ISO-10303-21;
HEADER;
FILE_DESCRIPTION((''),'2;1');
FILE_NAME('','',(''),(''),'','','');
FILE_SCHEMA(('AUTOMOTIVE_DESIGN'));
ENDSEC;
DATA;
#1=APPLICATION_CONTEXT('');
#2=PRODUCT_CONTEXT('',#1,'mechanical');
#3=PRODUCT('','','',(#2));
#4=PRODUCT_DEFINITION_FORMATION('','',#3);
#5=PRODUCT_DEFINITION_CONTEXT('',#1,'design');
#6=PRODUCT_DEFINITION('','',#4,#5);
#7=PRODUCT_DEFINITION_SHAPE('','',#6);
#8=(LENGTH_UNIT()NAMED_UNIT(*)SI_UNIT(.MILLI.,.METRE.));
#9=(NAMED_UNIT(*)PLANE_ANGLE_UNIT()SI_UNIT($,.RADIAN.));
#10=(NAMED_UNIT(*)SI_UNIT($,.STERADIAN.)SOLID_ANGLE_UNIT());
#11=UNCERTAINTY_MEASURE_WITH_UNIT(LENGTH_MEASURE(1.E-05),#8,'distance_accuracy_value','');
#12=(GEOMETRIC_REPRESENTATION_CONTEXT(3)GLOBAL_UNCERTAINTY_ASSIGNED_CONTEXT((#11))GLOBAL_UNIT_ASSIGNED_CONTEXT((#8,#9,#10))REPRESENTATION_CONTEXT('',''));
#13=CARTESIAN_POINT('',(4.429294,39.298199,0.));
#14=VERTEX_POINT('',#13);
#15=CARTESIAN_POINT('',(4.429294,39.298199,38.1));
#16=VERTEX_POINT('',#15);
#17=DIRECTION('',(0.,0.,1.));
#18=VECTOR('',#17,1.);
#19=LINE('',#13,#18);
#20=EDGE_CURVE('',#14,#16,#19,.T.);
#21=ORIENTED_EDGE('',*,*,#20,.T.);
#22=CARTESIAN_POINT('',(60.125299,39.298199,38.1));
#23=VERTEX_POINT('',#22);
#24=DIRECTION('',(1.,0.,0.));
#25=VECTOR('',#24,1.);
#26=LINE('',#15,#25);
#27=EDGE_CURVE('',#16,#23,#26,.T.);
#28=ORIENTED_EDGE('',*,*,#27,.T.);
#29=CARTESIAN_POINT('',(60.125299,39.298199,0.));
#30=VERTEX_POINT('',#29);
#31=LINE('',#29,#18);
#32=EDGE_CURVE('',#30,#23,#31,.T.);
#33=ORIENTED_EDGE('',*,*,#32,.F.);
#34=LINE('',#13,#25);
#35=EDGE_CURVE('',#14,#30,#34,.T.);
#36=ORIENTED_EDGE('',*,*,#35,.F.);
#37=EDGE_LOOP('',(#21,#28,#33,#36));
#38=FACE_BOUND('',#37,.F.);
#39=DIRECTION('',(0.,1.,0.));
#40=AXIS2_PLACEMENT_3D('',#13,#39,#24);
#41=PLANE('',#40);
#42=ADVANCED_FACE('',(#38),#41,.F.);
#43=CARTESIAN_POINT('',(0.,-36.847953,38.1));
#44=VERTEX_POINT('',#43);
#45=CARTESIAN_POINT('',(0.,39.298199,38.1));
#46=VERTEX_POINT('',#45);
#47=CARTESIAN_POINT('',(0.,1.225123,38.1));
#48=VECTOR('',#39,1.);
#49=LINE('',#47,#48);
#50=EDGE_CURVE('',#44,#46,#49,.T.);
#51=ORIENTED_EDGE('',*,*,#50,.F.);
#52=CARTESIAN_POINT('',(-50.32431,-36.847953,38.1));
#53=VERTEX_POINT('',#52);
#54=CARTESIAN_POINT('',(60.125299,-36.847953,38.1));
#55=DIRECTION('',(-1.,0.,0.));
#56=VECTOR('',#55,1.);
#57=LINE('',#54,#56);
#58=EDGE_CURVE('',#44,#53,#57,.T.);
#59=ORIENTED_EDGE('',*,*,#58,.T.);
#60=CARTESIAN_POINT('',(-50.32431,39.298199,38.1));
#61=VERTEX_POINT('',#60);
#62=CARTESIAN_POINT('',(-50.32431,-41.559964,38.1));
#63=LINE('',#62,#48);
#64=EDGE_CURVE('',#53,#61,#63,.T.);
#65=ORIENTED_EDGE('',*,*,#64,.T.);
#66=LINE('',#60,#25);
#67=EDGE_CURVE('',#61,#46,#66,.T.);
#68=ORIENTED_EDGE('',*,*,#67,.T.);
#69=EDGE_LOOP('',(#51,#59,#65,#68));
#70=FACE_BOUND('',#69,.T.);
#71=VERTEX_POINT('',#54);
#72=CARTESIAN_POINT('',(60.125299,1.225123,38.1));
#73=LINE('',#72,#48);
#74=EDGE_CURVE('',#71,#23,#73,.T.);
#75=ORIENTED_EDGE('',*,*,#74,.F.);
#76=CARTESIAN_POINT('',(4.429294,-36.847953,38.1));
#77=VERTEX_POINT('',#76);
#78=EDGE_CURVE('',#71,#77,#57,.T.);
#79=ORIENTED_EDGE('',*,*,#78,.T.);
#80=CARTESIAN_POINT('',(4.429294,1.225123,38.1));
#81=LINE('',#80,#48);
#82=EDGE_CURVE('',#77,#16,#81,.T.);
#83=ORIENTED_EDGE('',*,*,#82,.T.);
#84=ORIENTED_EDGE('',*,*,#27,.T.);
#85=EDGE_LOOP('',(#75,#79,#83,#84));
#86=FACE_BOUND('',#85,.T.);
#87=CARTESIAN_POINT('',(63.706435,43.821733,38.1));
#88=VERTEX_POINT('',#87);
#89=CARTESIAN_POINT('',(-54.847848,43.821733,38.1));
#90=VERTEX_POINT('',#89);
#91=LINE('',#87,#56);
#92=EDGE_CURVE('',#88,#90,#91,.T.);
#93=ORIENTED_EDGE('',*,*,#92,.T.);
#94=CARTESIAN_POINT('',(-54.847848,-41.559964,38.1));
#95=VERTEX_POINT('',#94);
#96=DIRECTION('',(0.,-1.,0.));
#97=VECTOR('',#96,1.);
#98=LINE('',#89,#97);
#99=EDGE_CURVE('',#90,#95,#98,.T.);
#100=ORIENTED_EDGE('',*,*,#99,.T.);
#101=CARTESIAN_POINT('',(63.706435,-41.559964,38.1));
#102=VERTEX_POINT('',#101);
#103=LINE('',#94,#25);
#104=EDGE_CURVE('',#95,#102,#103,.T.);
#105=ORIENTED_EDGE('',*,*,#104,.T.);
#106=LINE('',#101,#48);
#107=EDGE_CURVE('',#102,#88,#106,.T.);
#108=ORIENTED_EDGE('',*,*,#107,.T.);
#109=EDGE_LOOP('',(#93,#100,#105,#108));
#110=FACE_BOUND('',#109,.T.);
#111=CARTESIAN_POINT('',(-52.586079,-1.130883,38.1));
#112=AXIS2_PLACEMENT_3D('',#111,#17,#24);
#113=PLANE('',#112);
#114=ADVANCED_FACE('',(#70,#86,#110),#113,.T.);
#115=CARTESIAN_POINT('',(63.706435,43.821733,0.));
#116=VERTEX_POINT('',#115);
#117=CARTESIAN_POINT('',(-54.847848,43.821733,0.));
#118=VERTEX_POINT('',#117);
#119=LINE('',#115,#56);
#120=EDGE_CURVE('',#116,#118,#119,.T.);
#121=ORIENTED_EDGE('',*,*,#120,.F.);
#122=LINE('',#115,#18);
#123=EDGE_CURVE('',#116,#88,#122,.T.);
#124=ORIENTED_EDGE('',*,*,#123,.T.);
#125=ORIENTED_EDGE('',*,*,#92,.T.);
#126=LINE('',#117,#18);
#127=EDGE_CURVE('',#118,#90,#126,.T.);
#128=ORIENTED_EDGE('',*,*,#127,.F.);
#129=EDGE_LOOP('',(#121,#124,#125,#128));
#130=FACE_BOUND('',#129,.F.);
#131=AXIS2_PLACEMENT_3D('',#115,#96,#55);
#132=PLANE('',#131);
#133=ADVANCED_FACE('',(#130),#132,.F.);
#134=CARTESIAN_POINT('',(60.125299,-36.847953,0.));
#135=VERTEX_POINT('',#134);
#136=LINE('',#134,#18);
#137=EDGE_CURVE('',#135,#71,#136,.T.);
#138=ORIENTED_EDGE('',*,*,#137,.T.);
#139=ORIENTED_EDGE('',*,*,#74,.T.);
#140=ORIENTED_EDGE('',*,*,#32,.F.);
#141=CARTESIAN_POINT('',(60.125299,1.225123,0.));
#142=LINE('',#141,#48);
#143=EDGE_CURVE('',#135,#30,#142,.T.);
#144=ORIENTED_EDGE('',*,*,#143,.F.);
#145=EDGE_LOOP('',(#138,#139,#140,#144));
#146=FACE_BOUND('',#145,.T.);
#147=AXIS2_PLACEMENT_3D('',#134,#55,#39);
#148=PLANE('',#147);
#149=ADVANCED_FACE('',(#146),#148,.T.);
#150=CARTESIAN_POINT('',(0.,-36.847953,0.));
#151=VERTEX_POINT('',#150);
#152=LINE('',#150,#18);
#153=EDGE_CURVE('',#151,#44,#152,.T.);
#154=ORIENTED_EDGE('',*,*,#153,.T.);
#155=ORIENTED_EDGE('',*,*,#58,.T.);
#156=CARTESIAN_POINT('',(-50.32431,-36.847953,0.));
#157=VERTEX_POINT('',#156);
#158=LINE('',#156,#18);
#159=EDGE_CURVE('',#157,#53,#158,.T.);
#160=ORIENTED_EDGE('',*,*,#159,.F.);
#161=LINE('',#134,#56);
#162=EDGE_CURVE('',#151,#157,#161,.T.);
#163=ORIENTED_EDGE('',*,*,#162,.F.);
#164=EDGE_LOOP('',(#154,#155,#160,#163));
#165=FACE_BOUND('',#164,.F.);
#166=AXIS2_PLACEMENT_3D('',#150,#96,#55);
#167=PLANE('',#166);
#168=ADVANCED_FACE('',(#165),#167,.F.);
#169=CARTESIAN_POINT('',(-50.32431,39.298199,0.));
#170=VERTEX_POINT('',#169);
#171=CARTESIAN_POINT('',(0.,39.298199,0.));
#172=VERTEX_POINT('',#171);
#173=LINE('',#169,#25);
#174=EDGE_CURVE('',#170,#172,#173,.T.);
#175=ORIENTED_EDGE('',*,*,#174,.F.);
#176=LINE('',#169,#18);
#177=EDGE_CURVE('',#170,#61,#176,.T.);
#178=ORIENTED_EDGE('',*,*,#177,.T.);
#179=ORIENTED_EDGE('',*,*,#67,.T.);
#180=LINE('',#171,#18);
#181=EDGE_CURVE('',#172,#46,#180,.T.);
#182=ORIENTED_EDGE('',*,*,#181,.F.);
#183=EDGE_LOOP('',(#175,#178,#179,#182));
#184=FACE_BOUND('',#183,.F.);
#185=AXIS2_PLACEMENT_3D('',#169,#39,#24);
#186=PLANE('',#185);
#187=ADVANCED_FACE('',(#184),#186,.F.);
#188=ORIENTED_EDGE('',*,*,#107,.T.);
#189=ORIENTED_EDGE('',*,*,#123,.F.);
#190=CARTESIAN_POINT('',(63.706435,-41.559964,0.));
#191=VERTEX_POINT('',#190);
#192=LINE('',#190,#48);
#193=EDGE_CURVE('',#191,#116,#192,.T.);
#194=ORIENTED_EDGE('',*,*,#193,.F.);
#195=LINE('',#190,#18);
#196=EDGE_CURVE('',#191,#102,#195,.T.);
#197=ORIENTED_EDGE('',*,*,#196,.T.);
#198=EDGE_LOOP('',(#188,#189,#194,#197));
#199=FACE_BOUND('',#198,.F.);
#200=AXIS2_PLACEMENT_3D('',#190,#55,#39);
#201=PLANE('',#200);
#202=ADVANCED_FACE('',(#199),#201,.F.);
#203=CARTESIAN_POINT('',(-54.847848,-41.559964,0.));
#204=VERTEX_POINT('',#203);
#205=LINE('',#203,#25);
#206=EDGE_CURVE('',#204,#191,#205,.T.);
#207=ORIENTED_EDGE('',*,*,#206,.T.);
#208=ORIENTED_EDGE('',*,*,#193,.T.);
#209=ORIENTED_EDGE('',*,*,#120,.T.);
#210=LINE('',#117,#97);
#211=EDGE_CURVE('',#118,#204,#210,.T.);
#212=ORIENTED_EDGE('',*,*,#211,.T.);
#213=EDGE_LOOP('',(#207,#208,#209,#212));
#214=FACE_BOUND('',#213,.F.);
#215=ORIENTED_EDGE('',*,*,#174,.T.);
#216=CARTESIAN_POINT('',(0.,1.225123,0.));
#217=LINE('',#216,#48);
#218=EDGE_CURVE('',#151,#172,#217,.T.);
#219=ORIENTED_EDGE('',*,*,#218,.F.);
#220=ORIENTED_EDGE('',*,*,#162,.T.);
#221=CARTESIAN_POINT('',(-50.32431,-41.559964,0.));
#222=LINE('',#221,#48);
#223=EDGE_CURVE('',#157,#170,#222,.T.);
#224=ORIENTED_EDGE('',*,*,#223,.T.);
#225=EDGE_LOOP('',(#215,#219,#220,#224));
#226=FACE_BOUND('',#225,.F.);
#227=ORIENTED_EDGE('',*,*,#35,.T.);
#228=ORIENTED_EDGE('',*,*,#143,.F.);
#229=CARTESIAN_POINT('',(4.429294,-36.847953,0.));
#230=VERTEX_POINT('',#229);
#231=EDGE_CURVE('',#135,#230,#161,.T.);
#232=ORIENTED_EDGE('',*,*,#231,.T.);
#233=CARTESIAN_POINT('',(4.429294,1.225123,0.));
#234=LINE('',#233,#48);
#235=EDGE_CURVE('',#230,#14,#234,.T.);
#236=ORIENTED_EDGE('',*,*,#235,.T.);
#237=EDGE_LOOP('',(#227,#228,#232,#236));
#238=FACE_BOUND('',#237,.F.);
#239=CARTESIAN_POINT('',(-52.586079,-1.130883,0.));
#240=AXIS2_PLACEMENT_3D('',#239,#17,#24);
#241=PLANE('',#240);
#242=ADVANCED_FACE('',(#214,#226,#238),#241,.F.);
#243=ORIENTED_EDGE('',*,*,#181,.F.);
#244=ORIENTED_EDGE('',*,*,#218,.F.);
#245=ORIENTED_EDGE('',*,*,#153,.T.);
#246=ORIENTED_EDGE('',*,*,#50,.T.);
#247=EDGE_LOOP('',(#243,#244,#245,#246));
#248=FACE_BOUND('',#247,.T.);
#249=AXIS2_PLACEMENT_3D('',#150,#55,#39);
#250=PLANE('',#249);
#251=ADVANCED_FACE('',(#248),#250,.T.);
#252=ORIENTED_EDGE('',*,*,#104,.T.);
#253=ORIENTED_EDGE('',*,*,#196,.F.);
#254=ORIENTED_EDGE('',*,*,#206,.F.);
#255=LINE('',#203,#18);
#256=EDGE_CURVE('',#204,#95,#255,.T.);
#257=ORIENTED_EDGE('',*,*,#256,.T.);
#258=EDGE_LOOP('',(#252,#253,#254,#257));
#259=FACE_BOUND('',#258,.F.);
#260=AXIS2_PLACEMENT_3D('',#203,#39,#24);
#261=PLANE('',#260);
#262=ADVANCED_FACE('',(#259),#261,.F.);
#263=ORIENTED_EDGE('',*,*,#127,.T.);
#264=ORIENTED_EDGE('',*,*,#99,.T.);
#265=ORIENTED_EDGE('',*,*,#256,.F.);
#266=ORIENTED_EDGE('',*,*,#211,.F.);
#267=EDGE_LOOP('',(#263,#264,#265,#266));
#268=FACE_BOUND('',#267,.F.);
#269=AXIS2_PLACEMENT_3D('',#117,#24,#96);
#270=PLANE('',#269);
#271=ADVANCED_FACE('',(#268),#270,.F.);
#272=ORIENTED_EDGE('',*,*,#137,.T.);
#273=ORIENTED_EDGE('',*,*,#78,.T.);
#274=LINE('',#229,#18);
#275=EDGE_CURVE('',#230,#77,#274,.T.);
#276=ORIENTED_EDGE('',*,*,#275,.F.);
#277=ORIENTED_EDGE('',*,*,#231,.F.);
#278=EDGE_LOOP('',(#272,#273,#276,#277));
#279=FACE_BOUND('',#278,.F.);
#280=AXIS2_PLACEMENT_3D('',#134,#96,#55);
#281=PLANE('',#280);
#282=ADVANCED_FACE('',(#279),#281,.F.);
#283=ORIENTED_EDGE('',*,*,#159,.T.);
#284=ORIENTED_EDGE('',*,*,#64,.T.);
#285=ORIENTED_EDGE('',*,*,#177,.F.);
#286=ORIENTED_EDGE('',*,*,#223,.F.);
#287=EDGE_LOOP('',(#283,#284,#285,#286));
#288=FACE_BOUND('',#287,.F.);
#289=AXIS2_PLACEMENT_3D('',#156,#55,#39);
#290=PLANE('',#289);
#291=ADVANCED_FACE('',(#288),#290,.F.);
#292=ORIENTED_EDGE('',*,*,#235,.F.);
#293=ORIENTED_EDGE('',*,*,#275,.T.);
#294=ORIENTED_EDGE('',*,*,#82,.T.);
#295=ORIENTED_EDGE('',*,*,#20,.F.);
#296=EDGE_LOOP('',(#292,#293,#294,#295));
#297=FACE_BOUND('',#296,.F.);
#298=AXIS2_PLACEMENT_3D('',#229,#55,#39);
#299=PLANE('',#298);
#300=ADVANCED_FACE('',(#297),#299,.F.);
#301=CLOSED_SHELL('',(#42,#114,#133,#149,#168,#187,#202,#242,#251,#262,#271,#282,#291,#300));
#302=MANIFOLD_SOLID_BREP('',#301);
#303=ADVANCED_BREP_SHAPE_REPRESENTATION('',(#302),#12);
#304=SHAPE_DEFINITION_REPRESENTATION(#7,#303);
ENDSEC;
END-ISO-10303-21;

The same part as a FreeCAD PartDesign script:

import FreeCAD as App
import Part
import Sketcher

V = App.Vector
Q = App.Units.Quantity

doc = App.newDocument("Part")
body = doc.addObject("PartDesign::Body", "Body")

sketch1 = body.newObject("Sketcher::SketchObject", "Sketch")
sketch1.AttachmentSupport = (doc.getObject("XY_Plane"), [""])
sketch1.MapMode = "FlatFace"
sketch1.addGeometry([
    Part.LineSegment(V(-55, -42, 0), V(64, -42, 0)),
    Part.LineSegment(V(64, -42, 0), V(64, 44, 0)),
    Part.LineSegment(V(64, 44, 0), V(-55, 44, 0)),
    Part.LineSegment(V(-55, 44, 0), V(-55, -42, 0)),
    Part.LineSegment(V(60, 39, 0), V(60, -37, 0)),
    Part.LineSegment(V(60, -37, 0), V(4, -37, 0)),
    Part.LineSegment(V(4, -37, 0), V(4, 39, 0)),
    Part.LineSegment(V(4, 39, 0), V(60, 39, 0)),
    Part.LineSegment(V(0, 39, 0), V(0, -37, 0)),
    Part.LineSegment(V(0, -37, 0), V(-50, -37, 0)),
    Part.LineSegment(V(-50, -37, 0), V(-50, 39, 0)),
    Part.LineSegment(V(-50, 39, 0), V(0, 39, 0)),
], False)
sketch1.addConstraint([
    Sketcher.Constraint("Coincident", 0, 2, 1, 1),
    Sketcher.Constraint("Coincident", 1, 2, 2, 1),
    Sketcher.Constraint("Coincident", 2, 2, 3, 1),
    Sketcher.Constraint("Coincident", 3, 2, 0, 1),
    Sketcher.Constraint("Coincident", 4, 2, 5, 1),
    Sketcher.Constraint("Coincident", 5, 2, 6, 1),
    Sketcher.Constraint("Coincident", 6, 2, 7, 1),
    Sketcher.Constraint("Coincident", 7, 2, 4, 1),
    Sketcher.Constraint("Coincident", 8, 2, 9, 1),
    Sketcher.Constraint("Coincident", 9, 2, 10, 1),
    Sketcher.Constraint("Coincident", 10, 2, 11, 1),
    Sketcher.Constraint("Coincident", 11, 2, 8, 1),
    Sketcher.Constraint("Horizontal", 0),
    Sketcher.Constraint("Vertical", 1),
    Sketcher.Constraint("Horizontal", 2),
    Sketcher.Constraint("Vertical", 3),
    Sketcher.Constraint("Vertical", 4),
    Sketcher.Constraint("Horizontal", 5),
    Sketcher.Constraint("Vertical", 6),
    Sketcher.Constraint("Horizontal", 7),
    Sketcher.Constraint("Vertical", 8),
    Sketcher.Constraint("Horizontal", 9),
    Sketcher.Constraint("Vertical", 10),
    Sketcher.Constraint("Horizontal", 11),
    Sketcher.Constraint("PointOnObject", 8, 2, -2),
    Sketcher.Constraint("Horizontal", 5, 2, 8, 2),
    Sketcher.Constraint("Horizontal", 7, 2, 10, 2),
    Sketcher.Constraint("DistanceX", 9, 2, 9, 1, 50.32431),
    Sketcher.Constraint("DistanceY", 4, 2, 4, 1, 76.146152),
    Sketcher.Constraint("DistanceX", -1, 1, 4, 2, 60.125299),
    Sketcher.Constraint("DistanceY", -1, 1, 6, 2, 39.298199),
    Sketcher.Constraint("DistanceX", 0, 1, 0, 2, 118.554283),
    Sketcher.Constraint("DistanceX", 5, 2, 5, 1, 55.696005),
    Sketcher.Constraint("DistanceY", 1, 1, 1, 2, 85.381697),
    Sketcher.Constraint("DistanceY", 0, 2, 4, 2, 4.712011),
    Sketcher.Constraint("DistanceX", 5, 2, 0, 2, 59.277141),
])
pad1 = body.newObject("PartDesign::Pad", "Pad")
pad1.Profile = sketch1
pad1.Length = Q("1.5 in")

doc.recompute()
